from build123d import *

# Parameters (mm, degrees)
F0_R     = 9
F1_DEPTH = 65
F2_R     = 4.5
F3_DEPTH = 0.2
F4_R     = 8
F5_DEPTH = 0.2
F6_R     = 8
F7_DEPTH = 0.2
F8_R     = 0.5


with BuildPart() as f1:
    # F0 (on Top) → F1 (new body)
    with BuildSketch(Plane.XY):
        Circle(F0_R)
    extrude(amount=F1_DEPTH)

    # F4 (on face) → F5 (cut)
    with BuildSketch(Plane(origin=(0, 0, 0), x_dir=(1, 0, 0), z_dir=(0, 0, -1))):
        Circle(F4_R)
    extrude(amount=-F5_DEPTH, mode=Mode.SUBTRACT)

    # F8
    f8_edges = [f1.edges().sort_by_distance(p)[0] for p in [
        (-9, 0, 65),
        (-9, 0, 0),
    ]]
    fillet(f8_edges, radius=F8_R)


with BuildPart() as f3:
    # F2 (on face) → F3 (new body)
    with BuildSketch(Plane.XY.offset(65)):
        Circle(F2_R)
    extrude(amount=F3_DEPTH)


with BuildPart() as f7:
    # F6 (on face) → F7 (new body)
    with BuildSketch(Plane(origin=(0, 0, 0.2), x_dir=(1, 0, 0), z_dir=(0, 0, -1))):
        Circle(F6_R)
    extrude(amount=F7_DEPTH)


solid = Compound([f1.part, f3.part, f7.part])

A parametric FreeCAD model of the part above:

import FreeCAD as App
import Part
import Sketcher

V = App.Vector


def edges_at(feature, points):
    """Names of the edges that pass closest to the given points."""
    edges = feature.Shape.Edges
    near = lambda p: min(range(len(edges)), key=lambda i: edges[i].distToShape(Part.Vertex(*p))[0])
    return sorted({f"Edge{near(p) + 1}" for p in points})

doc = App.newDocument("Part")
body = doc.addObject("PartDesign::Body", "Body")

# Sketch on XY plane
sketch1 = doc.addObject("Sketcher::SketchObject", "Sketch")
body.addObject(sketch1)
sketch1.AttachmentSupport = (doc.XY_Plane, [""])
sketch1.MapMode = "FlatFace"
sketch1.addGeometry(Part.Circle(V(0, 0, 0), V(0, 0, 1), 9), False)
sketch1.addConstraint([
    Sketcher.Constraint("Coincident", 0, 3, -1, 1),
    Sketcher.Constraint("Diameter", 0, 18.0),
])
pad1 = doc.addObject("PartDesign::Pad", "Pad")
body.addObject(pad1)
pad1.Profile = sketch1
pad1.Length = 65

# Sketch on XY plane
sketch2 = doc.addObject("Sketcher::SketchObject", "Sketch001")
body.addObject(sketch2)
sketch2.AttachmentSupport = (doc.XY_Plane, [""])
sketch2.MapMode = "FlatFace"
sketch2.addGeometry(Part.Circle(V(0, 0, 0), V(0, 0, 1), 8), False)
sketch2.addConstraint([
    Sketcher.Constraint("Coincident", 0, 3, -1, 1),
    Sketcher.Constraint("Diameter", 0, 16.0),
])
pocket1 = doc.addObject("PartDesign::Pocket", "Pocket")
body.addObject(pocket1)
pocket1.Profile = sketch2
pocket1.Length = 0.2
pocket1.Reversed = True
doc.recompute()

fillet = doc.addObject("PartDesign::Fillet", "Fillet")
body.addObject(fillet)
fillet.Base = (pocket1, edges_at(pocket1, [(-9, 0, 65), (-9, 0, 0)]))
fillet.Radius = 0.5
body2 = doc.addObject("PartDesign::Body", "Body001")

# Sketch on XY plane
sketch3 = doc.addObject("Sketcher::SketchObject", "Sketch002")
body2.addObject(sketch3)
sketch3.AttachmentSupport = (doc.getObject("XY_Plane001"), [""])
sketch3.MapMode = "FlatFace"
sketch3.AttachmentOffset = App.Placement(V(0, 0, 65), App.Rotation())
sketch3.addGeometry(Part.Circle(V(0, 0, 0), V(0, 0, 1), 4.5), False)
sketch3.addConstraint([
    Sketcher.Constraint("Coincident", 0, 3, -1, 1),
    Sketcher.Constraint("Diameter", 0, 9.0),
])
pad2 = doc.addObject("PartDesign::Pad", "Pad001")
body2.addObject(pad2)
pad2.Profile = sketch3
pad2.Length = 0.2
body3 = doc.addObject("PartDesign::Body", "Body002")

# Sketch on XY plane
sketch4 = doc.addObject("Sketcher::SketchObject", "Sketch003")
body3.addObject(sketch4)
sketch4.AttachmentSupport = (doc.getObject("XY_Plane002"), [""])
sketch4.MapMode = "FlatFace"
sketch4.AttachmentOffset = App.Placement(V(0, 0, 0.2), App.Rotation())
sketch4.addGeometry(Part.Circle(V(0, 0, 0), V(0, 0, 1), 8), False)
sketch4.addConstraint([
    Sketcher.Constraint("Coincident", 0, 3, -1, 1),
    Sketcher.Constraint("Diameter", 0, 16.0),
])
pad3 = doc.addObject("PartDesign::Pad", "Pad002")
body3.addObject(pad3)
pad3.Profile = sketch4
pad3.Length = 0.2
pad3.Reversed = True

doc.recompute()
